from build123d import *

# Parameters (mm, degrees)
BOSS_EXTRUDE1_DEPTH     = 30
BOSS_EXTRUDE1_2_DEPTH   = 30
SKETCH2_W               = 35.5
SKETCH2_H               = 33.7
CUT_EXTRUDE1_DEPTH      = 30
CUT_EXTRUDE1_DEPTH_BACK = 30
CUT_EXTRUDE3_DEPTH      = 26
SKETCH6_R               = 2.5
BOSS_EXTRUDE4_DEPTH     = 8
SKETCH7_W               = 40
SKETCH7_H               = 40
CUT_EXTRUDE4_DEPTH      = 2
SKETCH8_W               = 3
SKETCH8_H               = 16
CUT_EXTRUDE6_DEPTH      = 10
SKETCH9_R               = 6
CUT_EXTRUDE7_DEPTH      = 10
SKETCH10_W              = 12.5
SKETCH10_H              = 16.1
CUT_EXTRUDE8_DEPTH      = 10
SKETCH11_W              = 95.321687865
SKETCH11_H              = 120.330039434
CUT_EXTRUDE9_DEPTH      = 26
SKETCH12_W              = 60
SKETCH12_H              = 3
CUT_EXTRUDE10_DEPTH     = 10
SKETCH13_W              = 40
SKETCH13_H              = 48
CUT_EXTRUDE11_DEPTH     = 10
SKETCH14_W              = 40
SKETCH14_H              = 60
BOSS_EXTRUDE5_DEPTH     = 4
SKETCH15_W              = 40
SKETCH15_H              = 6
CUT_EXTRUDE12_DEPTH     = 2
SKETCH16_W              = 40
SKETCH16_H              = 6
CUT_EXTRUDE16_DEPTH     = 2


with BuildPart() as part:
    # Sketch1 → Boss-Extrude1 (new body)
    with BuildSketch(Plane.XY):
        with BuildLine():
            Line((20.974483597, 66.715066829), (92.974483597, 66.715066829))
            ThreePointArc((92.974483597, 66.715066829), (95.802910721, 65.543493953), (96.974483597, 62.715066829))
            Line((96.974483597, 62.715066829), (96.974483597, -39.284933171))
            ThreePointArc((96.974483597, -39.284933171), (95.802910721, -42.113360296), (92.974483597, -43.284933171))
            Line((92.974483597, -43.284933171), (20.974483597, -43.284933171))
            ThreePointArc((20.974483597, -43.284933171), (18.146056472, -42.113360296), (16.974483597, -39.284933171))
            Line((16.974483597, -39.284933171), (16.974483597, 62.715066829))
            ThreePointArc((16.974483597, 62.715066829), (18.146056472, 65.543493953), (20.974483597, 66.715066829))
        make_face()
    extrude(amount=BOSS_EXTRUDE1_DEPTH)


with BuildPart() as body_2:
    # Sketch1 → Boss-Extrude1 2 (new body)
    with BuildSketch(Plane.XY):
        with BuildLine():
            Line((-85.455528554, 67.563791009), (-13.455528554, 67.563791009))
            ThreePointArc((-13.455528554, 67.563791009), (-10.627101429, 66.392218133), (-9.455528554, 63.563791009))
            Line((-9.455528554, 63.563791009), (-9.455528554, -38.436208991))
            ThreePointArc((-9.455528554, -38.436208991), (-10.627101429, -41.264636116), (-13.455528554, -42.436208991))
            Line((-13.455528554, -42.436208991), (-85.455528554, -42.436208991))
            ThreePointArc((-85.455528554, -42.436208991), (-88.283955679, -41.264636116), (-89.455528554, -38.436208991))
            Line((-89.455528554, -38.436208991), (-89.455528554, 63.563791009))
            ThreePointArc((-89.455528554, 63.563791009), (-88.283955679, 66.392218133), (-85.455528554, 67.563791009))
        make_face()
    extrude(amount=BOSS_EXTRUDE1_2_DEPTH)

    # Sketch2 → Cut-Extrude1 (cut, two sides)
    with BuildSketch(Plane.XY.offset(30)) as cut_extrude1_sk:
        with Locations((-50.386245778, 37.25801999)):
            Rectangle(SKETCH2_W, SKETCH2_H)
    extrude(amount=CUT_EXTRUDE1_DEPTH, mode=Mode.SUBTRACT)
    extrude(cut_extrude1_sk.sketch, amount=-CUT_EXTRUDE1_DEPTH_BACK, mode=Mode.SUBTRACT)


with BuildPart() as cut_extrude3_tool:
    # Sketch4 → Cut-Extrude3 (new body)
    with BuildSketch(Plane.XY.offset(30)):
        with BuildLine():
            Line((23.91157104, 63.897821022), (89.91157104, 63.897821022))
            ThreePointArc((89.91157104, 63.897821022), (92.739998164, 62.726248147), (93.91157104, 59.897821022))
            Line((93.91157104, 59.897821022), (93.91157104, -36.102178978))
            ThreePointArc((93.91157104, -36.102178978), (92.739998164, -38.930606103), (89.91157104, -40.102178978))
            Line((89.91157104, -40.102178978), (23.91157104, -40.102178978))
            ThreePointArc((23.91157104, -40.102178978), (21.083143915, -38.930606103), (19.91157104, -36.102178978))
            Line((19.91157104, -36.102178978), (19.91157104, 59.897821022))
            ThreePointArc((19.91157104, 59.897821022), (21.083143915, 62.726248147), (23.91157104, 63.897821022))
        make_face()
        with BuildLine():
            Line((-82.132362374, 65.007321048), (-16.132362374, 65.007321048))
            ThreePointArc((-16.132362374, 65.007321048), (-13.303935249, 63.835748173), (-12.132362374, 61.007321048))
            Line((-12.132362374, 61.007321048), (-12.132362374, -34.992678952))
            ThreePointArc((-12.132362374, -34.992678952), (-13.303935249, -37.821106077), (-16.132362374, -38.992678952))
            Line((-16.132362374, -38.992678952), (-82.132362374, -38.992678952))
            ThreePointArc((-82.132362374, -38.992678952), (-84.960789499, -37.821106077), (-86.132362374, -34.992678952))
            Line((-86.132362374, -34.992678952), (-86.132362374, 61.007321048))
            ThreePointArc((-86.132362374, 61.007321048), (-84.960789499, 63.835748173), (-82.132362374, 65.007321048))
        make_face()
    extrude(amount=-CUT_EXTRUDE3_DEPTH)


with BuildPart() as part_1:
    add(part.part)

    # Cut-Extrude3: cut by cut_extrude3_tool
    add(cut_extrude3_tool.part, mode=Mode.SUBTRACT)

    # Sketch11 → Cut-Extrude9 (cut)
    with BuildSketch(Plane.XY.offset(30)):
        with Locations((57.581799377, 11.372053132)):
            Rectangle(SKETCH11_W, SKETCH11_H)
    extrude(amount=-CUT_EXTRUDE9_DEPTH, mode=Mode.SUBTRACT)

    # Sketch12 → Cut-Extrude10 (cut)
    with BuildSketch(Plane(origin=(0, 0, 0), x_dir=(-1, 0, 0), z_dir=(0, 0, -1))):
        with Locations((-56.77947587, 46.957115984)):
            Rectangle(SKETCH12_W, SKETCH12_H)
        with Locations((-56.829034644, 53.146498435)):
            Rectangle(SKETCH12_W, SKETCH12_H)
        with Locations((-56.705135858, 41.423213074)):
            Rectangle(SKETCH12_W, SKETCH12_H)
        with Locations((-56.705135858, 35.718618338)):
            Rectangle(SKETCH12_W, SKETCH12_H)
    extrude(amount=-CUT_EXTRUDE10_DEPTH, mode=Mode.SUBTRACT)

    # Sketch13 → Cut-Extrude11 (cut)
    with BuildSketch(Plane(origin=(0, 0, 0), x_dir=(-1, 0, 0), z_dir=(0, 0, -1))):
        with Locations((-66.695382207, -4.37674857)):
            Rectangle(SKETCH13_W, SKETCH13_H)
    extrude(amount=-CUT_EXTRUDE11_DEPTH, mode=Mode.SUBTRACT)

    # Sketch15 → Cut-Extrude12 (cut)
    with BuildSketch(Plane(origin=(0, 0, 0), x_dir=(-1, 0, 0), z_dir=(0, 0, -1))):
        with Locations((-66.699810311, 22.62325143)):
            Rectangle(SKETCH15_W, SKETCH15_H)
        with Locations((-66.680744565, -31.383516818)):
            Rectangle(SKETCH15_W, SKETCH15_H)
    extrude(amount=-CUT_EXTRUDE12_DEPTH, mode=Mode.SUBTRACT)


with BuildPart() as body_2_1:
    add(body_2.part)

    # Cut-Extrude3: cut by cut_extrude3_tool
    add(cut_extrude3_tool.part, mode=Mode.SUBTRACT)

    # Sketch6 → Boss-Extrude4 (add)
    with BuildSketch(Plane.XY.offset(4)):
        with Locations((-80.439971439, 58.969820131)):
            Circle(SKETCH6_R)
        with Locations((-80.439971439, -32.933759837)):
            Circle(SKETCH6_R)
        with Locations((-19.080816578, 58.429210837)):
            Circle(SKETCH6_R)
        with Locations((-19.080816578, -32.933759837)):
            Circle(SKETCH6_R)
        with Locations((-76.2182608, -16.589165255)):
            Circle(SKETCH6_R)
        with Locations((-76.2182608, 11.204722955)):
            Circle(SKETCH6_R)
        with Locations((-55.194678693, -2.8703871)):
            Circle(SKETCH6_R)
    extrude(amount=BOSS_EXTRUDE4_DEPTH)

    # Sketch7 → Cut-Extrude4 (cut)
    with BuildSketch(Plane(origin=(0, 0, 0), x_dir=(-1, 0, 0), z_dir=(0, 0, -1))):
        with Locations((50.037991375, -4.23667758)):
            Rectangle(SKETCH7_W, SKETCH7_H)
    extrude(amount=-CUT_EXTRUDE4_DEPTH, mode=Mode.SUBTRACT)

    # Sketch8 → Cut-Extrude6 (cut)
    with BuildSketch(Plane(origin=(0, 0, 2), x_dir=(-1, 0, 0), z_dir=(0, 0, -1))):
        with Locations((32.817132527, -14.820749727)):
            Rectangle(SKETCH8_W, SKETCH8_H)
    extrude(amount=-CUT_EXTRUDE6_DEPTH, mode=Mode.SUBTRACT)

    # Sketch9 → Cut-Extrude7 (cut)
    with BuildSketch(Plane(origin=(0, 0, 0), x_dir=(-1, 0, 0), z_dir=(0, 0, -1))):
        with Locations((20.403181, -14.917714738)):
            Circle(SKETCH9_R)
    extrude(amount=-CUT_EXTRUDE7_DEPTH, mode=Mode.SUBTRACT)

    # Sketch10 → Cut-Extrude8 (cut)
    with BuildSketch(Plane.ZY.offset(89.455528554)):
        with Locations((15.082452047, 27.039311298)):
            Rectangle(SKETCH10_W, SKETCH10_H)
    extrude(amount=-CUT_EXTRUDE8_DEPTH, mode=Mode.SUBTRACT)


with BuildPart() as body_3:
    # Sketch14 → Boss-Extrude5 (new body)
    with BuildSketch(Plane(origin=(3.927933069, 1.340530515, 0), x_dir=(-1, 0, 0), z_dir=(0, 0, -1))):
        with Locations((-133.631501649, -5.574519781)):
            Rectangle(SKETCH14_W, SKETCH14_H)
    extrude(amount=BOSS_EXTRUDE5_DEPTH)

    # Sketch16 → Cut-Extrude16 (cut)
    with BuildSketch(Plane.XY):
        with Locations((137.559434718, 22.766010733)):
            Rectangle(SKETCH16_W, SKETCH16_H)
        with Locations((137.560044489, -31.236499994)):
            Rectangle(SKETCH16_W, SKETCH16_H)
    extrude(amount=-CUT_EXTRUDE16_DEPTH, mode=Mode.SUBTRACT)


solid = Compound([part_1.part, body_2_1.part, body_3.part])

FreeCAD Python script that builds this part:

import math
import FreeCAD as App
import Part
import Sketcher

doc = App.newDocument("Part")
params = doc.addObject("Spreadsheet::Sheet", "Params")
for row, (alias, value) in enumerate([
    ("sketch1_radius", "4 mm"),
    ("sketch1_width", "72 mm"),
    ("sketch1_height", "102 mm"),
    ("pad1_length", "30 mm"),
    ("sketch2_radius", "4 mm"),
    ("sketch2_width", "72 mm"),
    ("sketch2_height", "102 mm"),
    ("pad2_length", "30 mm"),
    ("sketch3_width", "35.5 mm"),
    ("sketch3_height", "33.7 mm"),
    ("sketch4_radius", "4 mm"),
    ("sketch4_width", "66 mm"),
    ("sketch4_height", "96 mm"),
    ("pad3_length", "26 mm"),
    ("pocket2_length", "26 mm"),
    ("sketch6_width", "60 mm"),
    ("sketch6_height", "3 mm"),
    ("pocket3_length", "10 mm"),
    ("sketch7_width", "40 mm"),
    ("sketch7_height", "48 mm"),
    ("pocket4_length", "10 mm"),
    ("sketch8_width", "40 mm"),
    ("sketch8_height", "6 mm"),
    ("pocket5_length", "2 mm"),
    ("sketch9_diameter", "5 mm"),
    ("pad4_length", "8 mm"),
    ("sketch10_width", "40 mm"),
    ("pocket6_length", "2 mm"),
    ("sketch11_width", "3 mm"),
    ("sketch11_height", "16 mm"),
    ("pocket7_length", "10 mm"),
    ("sketch12_diameter", "12 mm"),
    ("pocket8_length", "10 mm"),
    ("sketch13_width", "16.1 mm"),
    ("sketch13_height", "12.5 mm"),
    ("pocket9_length", "10 mm"),
    ("sketch14_width", "40 mm"),
    ("sketch14_height", "60 mm"),
    ("pad5_length", "4 mm"),
    ("sketch15_width", "40 mm"),
    ("sketch15_height", "6 mm"),
    ("pocket10_length", "2 mm"),
], start=1):
    params.set(f"A{row}", alias)
    params.set(f"B{row}", "=" + value)
    params.setAlias(f"B{row}", alias)

body = doc.addObject("PartDesign::Body", "Body")

# Sketch on XY plane
sketch1 = body.newObject("Sketcher::SketchObject", "Sketch")
sketch1.AttachmentSupport = (doc.getObject("XY_Plane"), [""])
sketch1.MapMode = "FlatFace"
sketch1.addGeometry([
    Part.LineSegment(App.Vector(92.974484, 66.715067, 0), App.Vector(20.974484, 66.715067, 0)),  # 0
    Part.ArcOfCircle(Part.Circle(App.Vector(20.974484, 62.715067, 0), App.Vector(0, 0, 1), 4), math.radians(90), math.radians(180)),  # 1
    Part.LineSegment(App.Vector(16.974484, 62.715067, 0), App.Vector(16.974484, -39.284933, 0)),  # 2
    Part.ArcOfCircle(Part.Circle(App.Vector(20.974484, -39.284933, 0), App.Vector(0, 0, 1), 4), math.radians(180), math.radians(270)),  # 3
    Part.LineSegment(App.Vector(20.974484, -43.284933, 0), App.Vector(92.974484, -43.284933, 0)),  # 4
    Part.ArcOfCircle(Part.Circle(App.Vector(92.974484, -39.284933, 0), App.Vector(0, 0, 1), 4), math.radians(-90), math.radians(0)),  # 5
    Part.LineSegment(App.Vector(96.974484, -39.284933, 0), App.Vector(96.974484, 62.715067, 0)),  # 6
    Part.ArcOfCircle(Part.Circle(App.Vector(92.974484, 62.715067, 0), App.Vector(0, 0, 1), 4), math.radians(0), math.radians(90)),  # 7
], False)
sketch1.addConstraint([
    Sketcher.Constraint("Tangent", 0, 2, 1, 1),
    Sketcher.Constraint("Tangent", 1, 2, 2, 1),
    Sketcher.Constraint("Tangent", 2, 2, 3, 1),
    Sketcher.Constraint("Tangent", 3, 2, 4, 1),
    Sketcher.Constraint("Tangent", 4, 2, 5, 1),
    Sketcher.Constraint("Tangent", 5, 2, 6, 1),
    Sketcher.Constraint("Tangent", 6, 2, 7, 1),
    Sketcher.Constraint("Tangent", 7, 2, 0, 1),
    Sketcher.Constraint("Horizontal", 0),
    Sketcher.Constraint("Vertical", 2),
    Sketcher.Constraint("Horizontal", 4),
    Sketcher.Constraint("Vertical", 6),
    Sketcher.Constraint("Equal", 1, 3),
    Sketcher.Constraint("Equal", 3, 5),
    Sketcher.Constraint("Equal", 5, 7),
    Sketcher.Constraint("Radius", 1, 4.0),
    Sketcher.Constraint("DistanceX", 0, 2, 0, 1, 72.0),
    Sketcher.Constraint("DistanceY", 2, 2, 2, 1, 102.0),
    Sketcher.Constraint("DistanceX", -1, 1, 1, 3, 20.974484),
    Sketcher.Constraint("DistanceY", -1, 1, 1, 3, 62.715067),
])
sketch1.setExpression("Constraints[15]", "Params.sketch1_radius")
sketch1.setExpression("Constraints[16]", "Params.sketch1_width")
sketch1.setExpression("Constraints[17]", "Params.sketch1_height")
pad1 = body.newObject("PartDesign::Pad", "Pad")
pad1.Profile = sketch1
pad1.setExpression("Length", "Params.pad1_length")
body2 = doc.addObject("PartDesign::Body", "Body001")

# Sketch on XY plane
sketch2 = body2.newObject("Sketcher::SketchObject", "Sketch001")
sketch2.AttachmentSupport = (doc.getObject("XY_Plane001"), [""])
sketch2.MapMode = "FlatFace"
sketch2.addGeometry([
    Part.LineSegment(App.Vector(-13.455529, 67.563791, 0), App.Vector(-85.455529, 67.563791, 0)),  # 0
    Part.ArcOfCircle(Part.Circle(App.Vector(-85.455529, 63.563791, 0), App.Vector(0, 0, 1), 4), math.radians(90), math.radians(180)),  # 1
    Part.LineSegment(App.Vector(-89.455529, 63.563791, 0), App.Vector(-89.455529, -38.436209, 0)),  # 2
    Part.ArcOfCircle(Part.Circle(App.Vector(-85.455529, -38.436209, 0), App.Vector(0, 0, 1), 4), math.radians(180), math.radians(270)),  # 3
    Part.LineSegment(App.Vector(-85.455529, -42.436209, 0), App.Vector(-13.455529, -42.436209, 0)),  # 4
    Part.ArcOfCircle(Part.Circle(App.Vector(-13.455529, -38.436209, 0), App.Vector(0, 0, 1), 4), math.radians(-90), math.radians(0)),  # 5
    Part.LineSegment(App.Vector(-9.455529, -38.436209, 0), App.Vector(-9.455529, 63.563791, 0)),  # 6
    Part.ArcOfCircle(Part.Circle(App.Vector(-13.455529, 63.563791, 0), App.Vector(0, 0, 1), 4), math.radians(0), math.radians(90)),  # 7
], False)
sketch2.addConstraint([
    Sketcher.Constraint("Tangent", 0, 2, 1, 1),
    Sketcher.Constraint("Tangent", 1, 2, 2, 1),
    Sketcher.Constraint("Tangent", 2, 2, 3, 1),
    Sketcher.Constraint("Tangent", 3, 2, 4, 1),
    Sketcher.Constraint("Tangent", 4, 2, 5, 1),
    Sketcher.Constraint("Tangent", 5, 2, 6, 1),
    Sketcher.Constraint("Tangent", 6, 2, 7, 1),
    Sketcher.Constraint("Tangent", 7, 2, 0, 1),
    Sketcher.Constraint("Horizontal", 0),
    Sketcher.Constraint("Vertical", 2),
    Sketcher.Constraint("Horizontal", 4),
    Sketcher.Constraint("Vertical", 6),
    Sketcher.Constraint("Equal", 1, 3),
    Sketcher.Constraint("Equal", 3, 5),
    Sketcher.Constraint("Equal", 5, 7),
    Sketcher.Constraint("Radius", 1, 4.0),
    Sketcher.Constraint("DistanceX", 0, 2, 0, 1, 72.0),
    Sketcher.Constraint("DistanceY", 2, 2, 2, 1, 102.0),
    Sketcher.Constraint("DistanceX", 1, 3, -1, 1, 85.455529),
    Sketcher.Constraint("DistanceY", -1, 1, 1, 3, 63.563791),
])
sketch2.setExpression("Constraints[15]", "Params.sketch2_radius")
sketch2.setExpression("Constraints[16]", "Params.sketch2_width")
sketch2.setExpression("Constraints[17]", "Params.sketch2_height")
pad2 = body2.newObject("PartDesign::Pad", "Pad001")
pad2.Profile = sketch2
pad2.setExpression("Length", "Params.pad2_length")

# Sketch on XY plane
sketch3 = body2.newObject("Sketcher::SketchObject", "Sketch002")
sketch3.AttachmentSupport = (doc.getObject("XY_Plane001"), [""])
sketch3.MapMode = "FlatFace"
sketch3.AttachmentOffset = App.Placement(App.Vector(0, 0, 30), App.Rotation())
sketch3.addGeometry([
    Part.LineSegment(App.Vector(-68.136246, 54.10802, 0), App.Vector(-68.136246, 20.40802, 0)),
    Part.LineSegment(App.Vector(-68.136246, 20.40802, 0), App.Vector(-32.636246, 20.40802, 0)),
    Part.LineSegment(App.Vector(-32.636246, 20.40802, 0), App.Vector(-32.636246, 54.10802, 0)),
    Part.LineSegment(App.Vector(-32.636246, 54.10802, 0), App.Vector(-68.136246, 54.10802, 0)),
], False)
sketch3.addConstraint([
    Sketcher.Constraint("Coincident", 0, 2, 1, 1),
    Sketcher.Constraint("Coincident", 1, 2, 2, 1),
    Sketcher.Constraint("Coincident", 2, 2, 3, 1),
    Sketcher.Constraint("Coincident", 3, 2, 0, 1),
    Sketcher.Constraint("Vertical", 0),
    Sketcher.Constraint("Horizontal", 1),
    Sketcher.Constraint("Vertical", 2),
    Sketcher.Constraint("Horizontal", 3),
    Sketcher.Constraint("DistanceX", 1, 1, 1, 2, 35.5),
    Sketcher.Constraint("DistanceY", 0, 2, 0, 1, 33.7),
    Sketcher.Constraint("DistanceY", -1, 1, 0, 2, 20.40802),
    Sketcher.Constraint("DistanceX", 0, 2, -1, 1, 68.136246),
])
sketch3.setExpression("Constraints[8]", "Params.sketch3_width")
sketch3.setExpression("Constraints[9]", "Params.sketch3_height")
pocket1 = body2.newObject("PartDesign::Pocket", "Pocket")
pocket1.Profile = sketch3
pocket1.Type = "ThroughAll"
pocket1.Midplane = True
body3 = doc.addObject("PartDesign::Body", "Body002")
body3.AllowCompound = True

# Sketch on XY plane
sketch4 = body3.newObject("Sketcher::SketchObject", "Sketch003")
sketch4.AttachmentSupport = (doc.getObject("XY_Plane002"), [""])
sketch4.MapMode = "FlatFace"
sketch4.AttachmentOffset = App.Placement(App.Vector(0, 0, 30), App.Rotation())
sketch4.addGeometry([
    Part.LineSegment(App.Vector(89.911571, 63.897821, 0), App.Vector(23.911571, 63.897821, 0)),  # 0
    Part.ArcOfCircle(Part.Circle(App.Vector(23.911571, 59.897821, 0), App.Vector(0, 0, 1), 4), math.radians(90), math.radians(180)),  # 1
    Part.LineSegment(App.Vector(19.911571, 59.897821, 0), App.Vector(19.911571, -36.102179, 0)),  # 2
    Part.ArcOfCircle(Part.Circle(App.Vector(23.911571, -36.102179, 0), App.Vector(0, 0, 1), 4), math.radians(180), math.radians(270)),  # 3
    Part.LineSegment(App.Vector(23.911571, -40.102179, 0), App.Vector(89.911571, -40.102179, 0)),  # 4
    Part.ArcOfCircle(Part.Circle(App.Vector(89.911571, -36.102179, 0), App.Vector(0, 0, 1), 4), math.radians(-90), math.radians(0)),  # 5
    Part.LineSegment(App.Vector(93.911571, -36.102179, 0), App.Vector(93.911571, 59.897821, 0)),  # 6
    Part.ArcOfCircle(Part.Circle(App.Vector(89.911571, 59.897821, 0), App.Vector(0, 0, 1), 4), math.radians(0), math.radians(90)),  # 7
    Part.LineSegment(App.Vector(-16.132362, 65.007321, 0), App.Vector(-82.132362, 65.007321, 0)),  # 8
    Part.ArcOfCircle(Part.Circle(App.Vector(-82.132362, 61.007321, 0), App.Vector(0, 0, 1), 4), math.radians(90), math.radians(180)),  # 9
    Part.LineSegment(App.Vector(-86.132362, 61.007321, 0), App.Vector(-86.132362, -34.992679, 0)),  # 10
    Part.ArcOfCircle(Part.Circle(App.Vector(-82.132362, -34.992679, 0), App.Vector(0, 0, 1), 4), math.radians(180), math.radians(270)),  # 11
    Part.LineSegment(App.Vector(-82.132362, -38.992679, 0), App.Vector(-16.132362, -38.992679, 0)),  # 12
    Part.ArcOfCircle(Part.Circle(App.Vector(-16.132362, -34.992679, 0), App.Vector(0, 0, 1), 4), math.radians(-90), math.radians(0)),  # 13
    Part.LineSegment(App.Vector(-12.132362, -34.992679, 0), App.Vector(-12.132362, 61.007321, 0)),  # 14
    Part.ArcOfCircle(Part.Circle(App.Vector(-16.132362, 61.007321, 0), App.Vector(0, 0, 1), 4), math.radians(0), math.radians(90)),  # 15
], False)
sketch4.addConstraint([
    Sketcher.Constraint("Tangent", 0, 2, 1, 1),
    Sketcher.Constraint("Tangent", 1, 2, 2, 1),
    Sketcher.Constraint("Tangent", 2, 2, 3, 1),
    Sketcher.Constraint("Tangent", 3, 2, 4, 1),
    Sketcher.Constraint("Tangent", 4, 2, 5, 1),
    Sketcher.Constraint("Tangent", 5, 2, 6, 1),
    Sketcher.Constraint("Tangent", 6, 2, 7, 1),
    Sketcher.Constraint("Tangent", 7, 2, 0, 1),
    Sketcher.Constraint("Tangent", 8, 2, 9, 1),
    Sketcher.Constraint("Tangent", 9, 2, 10, 1),
    Sketcher.Constraint("Tangent", 10, 2, 11, 1),
    Sketcher.Constraint("Tangent", 11, 2, 12, 1),
    Sketcher.Constraint("Tangent", 12, 2, 13, 1),
    Sketcher.Constraint("Tangent", 13, 2, 14, 1),
    Sketcher.Constraint("Tangent", 14, 2, 15, 1),
    Sketcher.Constraint("Tangent", 15, 2, 8, 1),
    Sketcher.Constraint("Horizontal", 0),
    Sketcher.Constraint("Vertical", 2),
    Sketcher.Constraint("Horizontal", 4),
    Sketcher.Constraint("Vertical", 6),
    Sketcher.Constraint("Horizontal", 8),
    Sketcher.Constraint("Vertical", 10),
    Sketcher.Constraint("Horizontal", 12),
    Sketcher.Constraint("Vertical", 14),
    Sketcher.Constraint("Equal", 1, 3),
    Sketcher.Constraint("Equal", 3, 5),
    Sketcher.Constraint("Equal", 5, 7),
    Sketcher.Constraint("Equal", 7, 9),
    Sketcher.Constraint("Equal", 9, 11),
    Sketcher.Constraint("Equal", 11, 13),
    Sketcher.Constraint("Equal", 13, 15),
    Sketcher.Constraint("Equal", 4, 8),
    Sketcher.Constraint("Equal", 6, 10),
    Sketcher.Constraint("Radius", 1, 4.0),
    Sketcher.Constraint("DistanceX", 0, 2, 0, 1, 66.0),
    Sketcher.Constraint("DistanceY", 2, 2, 2, 1, 96.0),
    Sketcher.Constraint("DistanceY", 1, 3, 9, 3, 1.1095),
    Sketcher.Constraint("DistanceX", -1, 1, 1, 3, 23.911571),
    Sketcher.Constraint("DistanceY", -1, 1, 1, 3, 59.897821),
    Sketcher.Constraint("DistanceX", 9, 3, -1, 1, 82.132362),
])
sketch4.setExpression("Constraints[33]", "Params.sketch4_radius")
sketch4.setExpression("Constraints[34]", "Params.sketch4_width")
sketch4.setExpression("Constraints[35]", "Params.sketch4_height")
pad3 = body3.newObject("PartDesign::Pad", "Pad002")
pad3.Profile = sketch4
pad3.setExpression("Length", "Params.pad3_length")
pad3.Reversed = True
doc.recompute()

body4 = doc.addObject("PartDesign::Body", "Body003")
body4.BaseFeature = body3
boolean = body.newObject("PartDesign::Boolean", "Boolean")
boolean.Type = "Cut"
boolean.addObjects([body4])
doc.recompute()

# Sketch on XY plane
sketch5 = body.newObject("Sketcher::SketchObject", "Sketch004")
sketch5.AttachmentSupport = (doc.getObject("XY_Plane"), [""])
sketch5.MapMode = "FlatFace"
sketch5.AttachmentOffset = App.Placement(App.Vector(0, 0, 30), App.Rotation())
sketch5.addGeometry([
    Part.LineSegment(App.Vector(9.920955, 71.537073, 0), App.Vector(9.920955, -48.792967, 0)),
    Part.LineSegment(App.Vector(9.920955, -48.792967, 0), App.Vector(105.242643, -48.792967, 0)),
    Part.LineSegment(App.Vector(105.242643, -48.792967, 0), App.Vector(105.242643, 71.537073, 0)),
    Part.LineSegment(App.Vector(105.242643, 71.537073, 0), App.Vector(9.920955, 71.537073, 0)),
], False)
sketch5.addConstraint([
    Sketcher.Constraint("Coincident", 0, 2, 1, 1),
    Sketcher.Constraint("Coincident", 1, 2, 2, 1),
    Sketcher.Constraint("Coincident", 2, 2, 3, 1),
    Sketcher.Constraint("Coincident", 3, 2, 0, 1),
    Sketcher.Constraint("Vertical", 0),
    Sketcher.Constraint("Horizontal", 1),
    Sketcher.Constraint("Vertical", 2),
    Sketcher.Constraint("Horizontal", 3),
    Sketcher.Constraint("DistanceY", 0, 2, 0, 1, 120.330039),
    Sketcher.Constraint("DistanceX", 1, 1, 1, 2, 95.321688),
    Sketcher.Constraint("DistanceX", -1, 1, 0, 2, 9.920955),
    Sketcher.Constraint("DistanceY", 0, 2, -1, 1, 48.792967),
])
pocket2 = body.newObject("PartDesign::Pocket", "Pocket001")
pocket2.Profile = sketch5
pocket2.setExpression("Length", "Params.pocket2_length")

# Sketch on XY plane
sketch6 = body.newObject("Sketcher::SketchObject", "Sketch005")
sketch6.AttachmentSupport = (doc.getObject("XY_Plane"), [""])
sketch6.MapMode = "FlatFace"
sketch6.addGeometry([
    Part.LineSegment(App.Vector(86.779476, 48.457116, 0), App.Vector(86.779476, 45.457116, 0)),  # 0
    Part.LineSegment(App.Vector(86.779476, 45.457116, 0), App.Vector(26.779476, 45.457116, 0)),  # 1
    Part.LineSegment(App.Vector(26.779476, 45.457116, 0), App.Vector(26.779476, 48.457116, 0)),  # 2
    Part.LineSegment(App.Vector(26.779476, 48.457116, 0), App.Vector(86.779476, 48.457116, 0)),  # 3
    Part.LineSegment(App.Vector(86.829035, 54.646498, 0), App.Vector(86.829035, 51.646498, 0)),  # 4
    Part.LineSegment(App.Vector(86.829035, 51.646498, 0), App.Vector(26.829035, 51.646498, 0)),  # 5
    Part.LineSegment(App.Vector(26.829035, 51.646498, 0), App.Vector(26.829035, 54.646498, 0)),  # 6
    Part.LineSegment(App.Vector(26.829035, 54.646498, 0), App.Vector(86.829035, 54.646498, 0)),  # 7
    Part.LineSegment(App.Vector(86.705136, 42.923213, 0), App.Vector(86.705136, 39.923213, 0)),  # 8
    Part.LineSegment(App.Vector(86.705136, 39.923213, 0), App.Vector(26.705136, 39.923213, 0)),  # 9
    Part.LineSegment(App.Vector(26.705136, 39.923213, 0), App.Vector(26.705136, 42.923213, 0)),  # 10
    Part.LineSegment(App.Vector(26.705136, 42.923213, 0), App.Vector(86.705136, 42.923213, 0)),  # 11
    Part.LineSegment(App.Vector(86.705136, 37.218618, 0), App.Vector(86.705136, 34.218618, 0)),  # 12
    Part.LineSegment(App.Vector(86.705136, 34.218618, 0), App.Vector(26.705136, 34.218618, 0)),  # 13
    Part.LineSegment(App.Vector(26.705136, 34.218618, 0), App.Vector(26.705136, 37.218618, 0)),  # 14
    Part.LineSegment(App.Vector(26.705136, 37.218618, 0), App.Vector(86.705136, 37.218618, 0)),  # 15
], False)
sketch6.addConstraint([
    Sketcher.Constraint("Coincident", 0, 2, 1, 1),
    Sketcher.Constraint("Coincident", 1, 2, 2, 1),
    Sketcher.Constraint("Coincident", 2, 2, 3, 1),
    Sketcher.Constraint("Coincident", 3, 2, 0, 1),
    Sketcher.Constraint("Coincident", 4, 2, 5, 1),
    Sketcher.Constraint("Coincident", 5, 2, 6, 1),
    Sketcher.Constraint("Coincident", 6, 2, 7, 1),
    Sketcher.Constraint("Coincident", 7, 2, 4, 1),
    Sketcher.Constraint("Coincident", 8, 2, 9, 1),
    Sketcher.Constraint("Coincident", 9, 2, 10, 1),
    Sketcher.Constraint("Coincident", 10, 2, 11, 1),
    Sketcher.Constraint("Coincident", 11, 2, 8, 1),
    Sketcher.Constraint("Coincident", 12, 2, 13, 1),
    Sketcher.Constraint("Coincident", 13, 2, 14, 1),
    Sketcher.Constraint("Coincident", 14, 2, 15, 1),
    Sketcher.Constraint("Coincident", 15, 2, 12, 1),
    Sketcher.Constraint("Vertical", 0),
    Sketcher.Constraint("Horizontal", 1),
    Sketcher.Constraint("Vertical", 2),
    Sketcher.Constraint("Horizontal", 3),
    Sketcher.Constraint("Vertical", 4),
    Sketcher.Constraint("Horizontal", 5),
    Sketcher.Constraint("Vertical", 6),
    Sketcher.Constraint("Horizontal", 7),
    Sketcher.Constraint("Vertical", 8),
    Sketcher.Constraint("Horizontal", 9),
    Sketcher.Constraint("Vertical", 10),
    Sketcher.Constraint("Horizontal", 11),
    Sketcher.Constraint("Vertical", 12),
    Sketcher.Constraint("Horizontal", 13),
    Sketcher.Constraint("Vertical", 14),
    Sketcher.Constraint("Horizontal", 15),
    Sketcher.Constraint("Vertical", 11, 2, 12, 2),
    Sketcher.Constraint("Vertical", 10, 2, 13, 2),
    Sketcher.Constraint("Equal", 3, 5),
    Sketcher.Constraint("Equal", 7, 9),
    Sketcher.Constraint("Equal", 2, 4),
    Sketcher.Constraint("Equal", 6, 8),
    Sketcher.Constraint("Equal", 10, 12),
    Sketcher.Constraint("DistanceX", 1, 2, 1, 1, 60.0),
    Sketcher.Constraint("DistanceY", 0, 2, 0, 1, 3.0),
    Sketcher.Constraint("DistanceY", -1, 1, 4, 2, 51.646498),
    Sketcher.Constraint("DistanceX", 8, 2, 4, 2, 0.123899),
    Sketcher.Constraint("DistanceY", -1, 1, 12, 2, 34.218618),
    Sketcher.Constraint("DistanceX", 3, 2, 4, 2, 0.049559),
    Sketcher.Constraint("DistanceX", -1, 1, 0, 2, 86.779476),
    Sketcher.Constraint("DistanceY", -1, 1, 0, 2, 45.457116),
    Sketcher.Constraint("DistanceY", -1, 1, 8, 2, 39.923213),
])
sketch6.setExpression("Constraints[39]", "Params.sketch6_width")
sketch6.setExpression("Constraints[40]", "Params.sketch6_height")
pocket3 = body.newObject("PartDesign::Pocket", "Pocket002")
pocket3.Profile = sketch6
pocket3.setExpression("Length", "Params.pocket3_length")
pocket3.Reversed = True

# Sketch on XY plane
sketch7 = body.newObject("Sketcher::SketchObject", "Sketch006")
sketch7.AttachmentSupport = (doc.getObject("XY_Plane"), [""])
sketch7.MapMode = "FlatFace"
sketch7.addGeometry([
    Part.LineSegment(App.Vector(86.695382, 19.623251, 0), App.Vector(86.695382, -28.376749, 0)),
    Part.LineSegment(App.Vector(86.695382, -28.376749, 0), App.Vector(46.695382, -28.376749, 0)),
    Part.LineSegment(App.Vector(46.695382, -28.376749, 0), App.Vector(46.695382, 19.623251, 0)),
    Part.LineSegment(App.Vector(46.695382, 19.623251, 0), App.Vector(86.695382, 19.623251, 0)),
], False)
sketch7.addConstraint([
    Sketcher.Constraint("Coincident", 0, 2, 1, 1),
    Sketcher.Constraint("Coincident", 1, 2, 2, 1),
    Sketcher.Constraint("Coincident", 2, 2, 3, 1),
    Sketcher.Constraint("Coincident", 3, 2, 0, 1),
    Sketcher.Constraint("Vertical", 0),
    Sketcher.Constraint("Horizontal", 1),
    Sketcher.Constraint("Vertical", 2),
    Sketcher.Constraint("Horizontal", 3),
    Sketcher.Constraint("DistanceX", 1, 2, 1, 1, 40.0),
    Sketcher.Constraint("DistanceY", 0, 2, 0, 1, 48.0),
    Sketcher.Constraint("DistanceY", 0, 2, -1, 1, 28.376749),
    Sketcher.Constraint("DistanceX", -1, 1, 0, 2, 86.695382),
])
sketch7.setExpression("Constraints[8]", "Params.sketch7_width")
sketch7.setExpression("Constraints[9]", "Params.sketch7_height")
pocket4 = body.newObject("PartDesign::Pocket", "Pocket003")
pocket4.Profile = sketch7
pocket4.setExpression("Length", "Params.pocket4_length")
pocket4.Reversed = True

# Sketch on XY plane
sketch8 = body.newObject("Sketcher::SketchObject", "Sketch007")
sketch8.AttachmentSupport = (doc.getObject("XY_Plane"), [""])
sketch8.MapMode = "FlatFace"
sketch8.addGeometry([
    Part.LineSegment(App.Vector(86.69981, 25.623251, 0), App.Vector(86.69981, 19.623251, 0)),  # 0
    Part.LineSegment(App.Vector(86.69981, 19.623251, 0), App.Vector(46.69981, 19.623251, 0)),  # 1
    Part.LineSegment(App.Vector(46.69981, 19.623251, 0), App.Vector(46.69981, 25.623251, 0)),  # 2
    Part.LineSegment(App.Vector(46.69981, 25.623251, 0), App.Vector(86.69981, 25.623251, 0)),  # 3
    Part.LineSegment(App.Vector(86.680745, -28.383517, 0), App.Vector(86.680745, -34.383517, 0)),  # 4
    Part.LineSegment(App.Vector(86.680745, -34.383517, 0), App.Vector(46.680745, -34.383517, 0)),  # 5
    Part.LineSegment(App.Vector(46.680745, -34.383517, 0), App.Vector(46.680745, -28.383517, 0)),  # 6
    Part.LineSegment(App.Vector(46.680745, -28.383517, 0), App.Vector(86.680745, -28.383517, 0)),  # 7
], False)
sketch8.addConstraint([
    Sketcher.Constraint("Coincident", 0, 2, 1, 1),
    Sketcher.Constraint("Coincident", 1, 2, 2, 1),
    Sketcher.Constraint("Coincident", 2, 2, 3, 1),
    Sketcher.Constraint("Coincident", 3, 2, 0, 1),
    Sketcher.Constraint("Coincident", 4, 2, 5, 1),
    Sketcher.Constraint("Coincident", 5, 2, 6, 1),
    Sketcher.Constraint("Coincident", 6, 2, 7, 1),
    Sketcher.Constraint("Coincident", 7, 2, 4, 1),
    Sketcher.Constraint("Vertical", 0),
    Sketcher.Constraint("Horizontal", 1),
    Sketcher.Constraint("Vertical", 2),
    Sketcher.Constraint("Horizontal", 3),
    Sketcher.Constraint("Vertical", 4),
    Sketcher.Constraint("Horizontal", 5),
    Sketcher.Constraint("Vertical", 6),
    Sketcher.Constraint("Horizontal", 7),
    Sketcher.Constraint("Equal", 3, 5),
    Sketcher.Constraint("Equal", 2, 4),
    Sketcher.Constraint("DistanceX", 1, 2, 1, 1, 40.0),
    Sketcher.Constraint("DistanceY", 0, 2, 0, 1, 6.0),
    Sketcher.Constraint("DistanceX", -1, 1, 0, 2, 86.69981),
    Sketcher.Constraint("DistanceY", -1, 1, 0, 2, 19.623251),
    Sketcher.Constraint("DistanceY", 4, 2, 0, 2, 54.006768),
    Sketcher.Constraint("DistanceX", -1, 1, 4, 2, 86.680745),
])
sketch8.setExpression("Constraints[18]", "Params.sketch8_width")
sketch8.setExpression("Constraints[19]", "Params.sketch8_height")
pocket5 = body.newObject("PartDesign::Pocket", "Pocket004")
pocket5.Profile = sketch8
pocket5.setExpression("Length", "Params.pocket5_length")
pocket5.Reversed = True
doc.recompute()

boolean2 = body2.newObject("PartDesign::Boolean", "Boolean001")
boolean2.Type = "Cut"
boolean2.addObjects([body3])

# Sketch on XY plane
sketch9 = body2.newObject("Sketcher::SketchObject", "Sketch008")
sketch9.AttachmentSupport = (doc.getObject("XY_Plane001"), [""])
sketch9.MapMode = "FlatFace"
sketch9.AttachmentOffset = App.Placement(App.Vector(0, 0, 4), App.Rotation())
sketch9.addGeometry([
    Part.Circle(App.Vector(-80.439971, 58.96982, 0), App.Vector(0, 0, 1), 2.5),  # 0
    Part.Circle(App.Vector(-80.439971, -32.93376, 0), App.Vector(0, 0, 1), 2.5),  # 1
    Part.Circle(App.Vector(-19.080817, 58.429211, 0), App.Vector(0, 0, 1), 2.5),  # 2
    Part.Circle(App.Vector(-19.080817, -32.93376, 0), App.Vector(0, 0, 1), 2.5),  # 3
    Part.Circle(App.Vector(-76.218261, -16.589165, 0), App.Vector(0, 0, 1), 2.5),  # 4
    Part.Circle(App.Vector(-76.218261, 11.204723, 0), App.Vector(0, 0, 1), 2.5),  # 5
    Part.Circle(App.Vector(-55.194679, -2.870387, 0), App.Vector(0, 0, 1), 2.5),  # 6
], False)
sketch9.addConstraint([
    Sketcher.Constraint("Equal", 0, 1),
    Sketcher.Constraint("Equal", 1, 2),
    Sketcher.Constraint("Equal", 2, 3),
    Sketcher.Constraint("Equal", 3, 4),
    Sketcher.Constraint("Equal", 4, 5),
    Sketcher.Constraint("Equal", 5, 6),
    Sketcher.Constraint("Horizontal", 1, 3, 3, 3),
    Sketcher.Constraint("Vertical", 0, 3, 1, 3),
    Sketcher.Constraint("Vertical", 2, 3, 3, 3),
    Sketcher.Constraint("Vertical", 4, 3, 5, 3),
    Sketcher.Constraint("Diameter", 0, 5.0),
    Sketcher.Constraint("DistanceX", 0, 3, -1, 1, 80.439971),
    Sketcher.Constraint("DistanceY", -1, 1, 0, 3, 58.96982),
    Sketcher.Constraint("DistanceY", 1, 3, -1, 1, 32.93376),
    Sketcher.Constraint("DistanceY", -1, 1, 2, 3, 58.429211),
    Sketcher.Constraint("DistanceX", 4, 3, -1, 1, 76.218261),
    Sketcher.Constraint("DistanceX", 6, 3, -1, 1, 55.194679),
    Sketcher.Constraint("DistanceY", 4, 3, 5, 3, 27.793888),
    Sketcher.Constraint("DistanceY", 4, 3, 6, 3, 13.718778),
    Sketcher.Constraint("DistanceX", 2, 3, -1, 1, 19.080817),
    Sketcher.Constraint("DistanceY", 4, 3, -1, 1, 16.589165),
])
sketch9.setExpression("Constraints[10]", "Params.sketch9_diameter")
pad4 = body2.newObject("PartDesign::Pad", "Pad003")
pad4.Profile = sketch9
pad4.setExpression("Length", "Params.pad4_length")

# Sketch on XY plane
sketch10 = body2.newObject("Sketcher::SketchObject", "Sketch009")
sketch10.AttachmentSupport = (doc.getObject("XY_Plane001"), [""])
sketch10.MapMode = "FlatFace"
sketch10.addGeometry([
    Part.LineSegment(App.Vector(-30.037991, 15.763322, 0), App.Vector(-30.037991, -24.236678, 0)),
    Part.LineSegment(App.Vector(-30.037991, -24.236678, 0), App.Vector(-70.037991, -24.236678, 0)),
    Part.LineSegment(App.Vector(-70.037991, -24.236678, 0), App.Vector(-70.037991, 15.763322, 0)),
    Part.LineSegment(App.Vector(-70.037991, 15.763322, 0), App.Vector(-30.037991, 15.763322, 0)),
], False)
sketch10.addConstraint([
    Sketcher.Constraint("Coincident", 0, 2, 1, 1),
    Sketcher.Constraint("Coincident", 1, 2, 2, 1),
    Sketcher.Constraint("Coincident", 2, 2, 3, 1),
    Sketcher.Constraint("Coincident", 3, 2, 0, 1),
    Sketcher.Constraint("Vertical", 0),
    Sketcher.Constraint("Horizontal", 1),
    Sketcher.Constraint("Vertical", 2),
    Sketcher.Constraint("Horizontal", 3),
    Sketcher.Constraint("Equal", 3, 0),
    Sketcher.Constraint("DistanceX", 1, 2, 1, 1, 40.0),
    Sketcher.Constraint("DistanceX", 0, 2, -1, 1, 30.037991),
    Sketcher.Constraint("DistanceY", 0, 2, -1, 1, 24.236678),
])
sketch10.setExpression("Constraints[9]", "Params.sketch10_width")
pocket6 = body2.newObject("PartDesign::Pocket", "Pocket005")
pocket6.Profile = sketch10
pocket6.setExpression("Length", "Params.pocket6_length")
pocket6.Reversed = True

# Sketch on XY plane
sketch11 = body2.newObject("Sketcher::SketchObject", "Sketch010")
sketch11.AttachmentSupport = (doc.getObject("XY_Plane001"), [""])
sketch11.MapMode = "FlatFace"
sketch11.AttachmentOffset = App.Placement(App.Vector(0, 0, 2), App.Rotation())
sketch11.addGeometry([
    Part.LineSegment(App.Vector(-31.317133, -6.82075, 0), App.Vector(-31.317133, -22.82075, 0)),
    Part.LineSegment(App.Vector(-31.317133, -22.82075, 0), App.Vector(-34.317133, -22.82075, 0)),
    Part.LineSegment(App.Vector(-34.317133, -22.82075, 0), App.Vector(-34.317133, -6.82075, 0)),
    Part.LineSegment(App.Vector(-34.317133, -6.82075, 0), App.Vector(-31.317133, -6.82075, 0)),
], False)
sketch11.addConstraint([
    Sketcher.Constraint("Coincident", 0, 2, 1, 1),
    Sketcher.Constraint("Coincident", 1, 2, 2, 1),
    Sketcher.Constraint("Coincident", 2, 2, 3, 1),
    Sketcher.Constraint("Coincident", 3, 2, 0, 1),
    Sketcher.Constraint("Vertical", 0),
    Sketcher.Constraint("Horizontal", 1),
    Sketcher.Constraint("Vertical", 2),
    Sketcher.Constraint("Horizontal", 3),
    Sketcher.Constraint("DistanceX", 1, 2, 1, 1, 3.0),
    Sketcher.Constraint("DistanceY", 0, 2, 0, 1, 16.0),
    Sketcher.Constraint("DistanceY", 0, 2, -1, 1, 22.82075),
    Sketcher.Constraint("DistanceX", 0, 2, -1, 1, 31.317133),
])
sketch11.setExpression("Constraints[8]", "Params.sketch11_width")
sketch11.setExpression("Constraints[9]", "Params.sketch11_height")
pocket7 = body2.newObject("PartDesign::Pocket", "Pocket006")
pocket7.Profile = sketch11
pocket7.setExpression("Length", "Params.pocket7_length")
pocket7.Reversed = True

# Sketch on XY plane
sketch12 = body2.newObject("Sketcher::SketchObject", "Sketch011")
sketch12.AttachmentSupport = (doc.getObject("XY_Plane001"), [""])
sketch12.MapMode = "FlatFace"
sketch12.addGeometry(Part.Circle(App.Vector(-20.403181, -14.917715, 0), App.Vector(0, 0, 1), 6), False)
sketch12.addConstraint([
    Sketcher.Constraint("Diameter", 0, 12.0),
    Sketcher.Constraint("DistanceX", 0, 3, -1, 1, 20.403181),
    Sketcher.Constraint("DistanceY", 0, 3, -1, 1, 14.917715),
])
sketch12.setExpression("Constraints[0]", "Params.sketch12_diameter")
pocket8 = body2.newObject("PartDesign::Pocket", "Pocket007")
pocket8.Profile = sketch12
pocket8.setExpression("Length", "Params.pocket8_length")
pocket8.Reversed = True

# Sketch on YZ plane
sketch13 = body2.newObject("Sketcher::SketchObject", "Sketch012")
sketch13.AttachmentSupport = (doc.getObject("YZ_Plane001"), [""])
sketch13.MapMode = "FlatFace"
sketch13.AttachmentOffset = App.Placement(App.Vector(0, 0, -89.455529), App.Rotation())
sketch13.addGeometry([
    Part.LineSegment(App.Vector(35.089311, 8.832452, 0), App.Vector(18.989311, 8.832452, 0)),
    Part.LineSegment(App.Vector(18.989311, 8.832452, 0), App.Vector(18.989311, 21.332452, 0)),
    Part.LineSegment(App.Vector(18.989311, 21.332452, 0), App.Vector(35.089311, 21.332452, 0)),
    Part.LineSegment(App.Vector(35.089311, 21.332452, 0), App.Vector(35.089311, 8.832452, 0)),
], False)
sketch13.addConstraint([
    Sketcher.Constraint("Coincident", 0, 2, 1, 1),
    Sketcher.Constraint("Coincident", 1, 2, 2, 1),
    Sketcher.Constraint("Coincident", 2, 2, 3, 1),
    Sketcher.Constraint("Coincident", 3, 2, 0, 1),
    Sketcher.Constraint("Horizontal", 0),
    Sketcher.Constraint("Vertical", 1),
    Sketcher.Constraint("Horizontal", 2),
    Sketcher.Constraint("Vertical", 3),
    Sketcher.Constraint("DistanceX", 0, 2, 0, 1, 16.1),
    Sketcher.Constraint("DistanceY", 1, 1, 1, 2, 12.5),
    Sketcher.Constraint("DistanceX", -1, 1, 0, 2, 18.989311),
    Sketcher.Constraint("DistanceY", -1, 1, 0, 2, 8.832452),
])
sketch13.setExpression("Constraints[8]", "Params.sketch13_width")
sketch13.setExpression("Constraints[9]", "Params.sketch13_height")
pocket9 = body2.newObject("PartDesign::Pocket", "Pocket008")
pocket9.Profile = sketch13
pocket9.setExpression("Length", "Params.pocket9_length")
pocket9.Reversed = True
body5 = doc.addObject("PartDesign::Body", "Body004")

# Sketch on XY plane
sketch14 = body5.newObject("Sketcher::SketchObject", "Sketch013")
sketch14.AttachmentSupport = (doc.getObject("XY_Plane004"), [""])
sketch14.MapMode = "FlatFace"
sketch14.addGeometry([
    Part.LineSegment(App.Vector(157.559435, 25.766011, 0), App.Vector(157.559435, -34.233989, 0)),
    Part.LineSegment(App.Vector(157.559435, -34.233989, 0), App.Vector(117.559435, -34.233989, 0)),
    Part.LineSegment(App.Vector(117.559435, -34.233989, 0), App.Vector(117.559435, 25.766011, 0)),
    Part.LineSegment(App.Vector(117.559435, 25.766011, 0), App.Vector(157.559435, 25.766011, 0)),
], False)
sketch14.addConstraint([
    Sketcher.Constraint("Coincident", 0, 2, 1, 1),
    Sketcher.Constraint("Coincident", 1, 2, 2, 1),
    Sketcher.Constraint("Coincident", 2, 2, 3, 1),
    Sketcher.Constraint("Coincident", 3, 2, 0, 1),
    Sketcher.Constraint("Vertical", 0),
    Sketcher.Constraint("Horizontal", 1),
    Sketcher.Constraint("Vertical", 2),
    Sketcher.Constraint("Horizontal", 3),
    Sketcher.Constraint("DistanceX", 1, 2, 1, 1, 40.0),
    Sketcher.Constraint("DistanceY", 0, 2, 0, 1, 60.0),
    Sketcher.Constraint("DistanceY", 0, 2, -1, 1, 34.233989),
    Sketcher.Constraint("DistanceX", -1, 1, 0, 2, 157.559435),
])
sketch14.setExpression("Constraints[8]", "Params.sketch14_width")
sketch14.setExpression("Constraints[9]", "Params.sketch14_height")
pad5 = body5.newObject("PartDesign::Pad", "Pad004")
pad5.Profile = sketch14
pad5.setExpression("Length", "Params.pad5_length")
pad5.Reversed = True

# Sketch on XY plane
sketch15 = body5.newObject("Sketcher::SketchObject", "Sketch014")
sketch15.AttachmentSupport = (doc.getObject("XY_Plane004"), [""])
sketch15.MapMode = "FlatFace"
sketch15.addGeometry([
    Part.LineSegment(App.Vector(117.559435, 25.766011, 0), App.Vector(117.559435, 19.766011, 0)),  # 0
    Part.LineSegment(App.Vector(117.559435, 19.766011, 0), App.Vector(157.559435, 19.766011, 0)),  # 1
    Part.LineSegment(App.Vector(157.559435, 19.766011, 0), App.Vector(157.559435, 25.766011, 0)),  # 2
    Part.LineSegment(App.Vector(157.559435, 25.766011, 0), App.Vector(117.559435, 25.766011, 0)),  # 3
    Part.LineSegment(App.Vector(117.560044, -28.2365, 0), App.Vector(117.560044, -34.2365, 0)),  # 4
    Part.LineSegment(App.Vector(117.560044, -34.2365, 0), App.Vector(157.560044, -34.2365, 0)),  # 5
    Part.LineSegment(App.Vector(157.560044, -34.2365, 0), App.Vector(157.560044, -28.2365, 0)),  # 6
    Part.LineSegment(App.Vector(157.560044, -28.2365, 0), App.Vector(117.560044, -28.2365, 0)),  # 7
], False)
sketch15.addConstraint([
    Sketcher.Constraint("Coincident", 0, 2, 1, 1),
    Sketcher.Constraint("Coincident", 1, 2, 2, 1),
    Sketcher.Constraint("Coincident", 2, 2, 3, 1),
    Sketcher.Constraint("Coincident", 3, 2, 0, 1),
    Sketcher.Constraint("Coincident", 4, 2, 5, 1),
    Sketcher.Constraint("Coincident", 5, 2, 6, 1),
    Sketcher.Constraint("Coincident", 6, 2, 7, 1),
    Sketcher.Constraint("Coincident", 7, 2, 4, 1),
    Sketcher.Constraint("Vertical", 0),
    Sketcher.Constraint("Horizontal", 1),
    Sketcher.Constraint("Vertical", 2),
    Sketcher.Constraint("Horizontal", 3),
    Sketcher.Constraint("Vertical", 4),
    Sketcher.Constraint("Horizontal", 5),
    Sketcher.Constraint("Vertical", 6),
    Sketcher.Constraint("Horizontal", 7),
    Sketcher.Constraint("Equal", 3, 5),
    Sketcher.Constraint("Equal", 2, 4),
    Sketcher.Constraint("DistanceX", 1, 1, 1, 2, 40.0),
    Sketcher.Constraint("DistanceY", 0, 2, 0, 1, 6.0),
    Sketcher.Constraint("DistanceY", 4, 2, -1, 1, 34.2365),
    Sketcher.Constraint("DistanceY", -1, 1, 0, 2, 19.766011),
    Sketcher.Constraint("DistanceX", 0, 2, 4, 2, 0.00061),
    Sketcher.Constraint("DistanceX", -1, 1, 0, 2, 117.559435),
])
sketch15.setExpression("Constraints[18]", "Params.sketch15_width")
sketch15.setExpression("Constraints[19]", "Params.sketch15_height")
pocket10 = body5.newObject("PartDesign::Pocket", "Pocket009")
pocket10.Profile = sketch15
pocket10.setExpression("Length", "Params.pocket10_length")

doc.recompute()
